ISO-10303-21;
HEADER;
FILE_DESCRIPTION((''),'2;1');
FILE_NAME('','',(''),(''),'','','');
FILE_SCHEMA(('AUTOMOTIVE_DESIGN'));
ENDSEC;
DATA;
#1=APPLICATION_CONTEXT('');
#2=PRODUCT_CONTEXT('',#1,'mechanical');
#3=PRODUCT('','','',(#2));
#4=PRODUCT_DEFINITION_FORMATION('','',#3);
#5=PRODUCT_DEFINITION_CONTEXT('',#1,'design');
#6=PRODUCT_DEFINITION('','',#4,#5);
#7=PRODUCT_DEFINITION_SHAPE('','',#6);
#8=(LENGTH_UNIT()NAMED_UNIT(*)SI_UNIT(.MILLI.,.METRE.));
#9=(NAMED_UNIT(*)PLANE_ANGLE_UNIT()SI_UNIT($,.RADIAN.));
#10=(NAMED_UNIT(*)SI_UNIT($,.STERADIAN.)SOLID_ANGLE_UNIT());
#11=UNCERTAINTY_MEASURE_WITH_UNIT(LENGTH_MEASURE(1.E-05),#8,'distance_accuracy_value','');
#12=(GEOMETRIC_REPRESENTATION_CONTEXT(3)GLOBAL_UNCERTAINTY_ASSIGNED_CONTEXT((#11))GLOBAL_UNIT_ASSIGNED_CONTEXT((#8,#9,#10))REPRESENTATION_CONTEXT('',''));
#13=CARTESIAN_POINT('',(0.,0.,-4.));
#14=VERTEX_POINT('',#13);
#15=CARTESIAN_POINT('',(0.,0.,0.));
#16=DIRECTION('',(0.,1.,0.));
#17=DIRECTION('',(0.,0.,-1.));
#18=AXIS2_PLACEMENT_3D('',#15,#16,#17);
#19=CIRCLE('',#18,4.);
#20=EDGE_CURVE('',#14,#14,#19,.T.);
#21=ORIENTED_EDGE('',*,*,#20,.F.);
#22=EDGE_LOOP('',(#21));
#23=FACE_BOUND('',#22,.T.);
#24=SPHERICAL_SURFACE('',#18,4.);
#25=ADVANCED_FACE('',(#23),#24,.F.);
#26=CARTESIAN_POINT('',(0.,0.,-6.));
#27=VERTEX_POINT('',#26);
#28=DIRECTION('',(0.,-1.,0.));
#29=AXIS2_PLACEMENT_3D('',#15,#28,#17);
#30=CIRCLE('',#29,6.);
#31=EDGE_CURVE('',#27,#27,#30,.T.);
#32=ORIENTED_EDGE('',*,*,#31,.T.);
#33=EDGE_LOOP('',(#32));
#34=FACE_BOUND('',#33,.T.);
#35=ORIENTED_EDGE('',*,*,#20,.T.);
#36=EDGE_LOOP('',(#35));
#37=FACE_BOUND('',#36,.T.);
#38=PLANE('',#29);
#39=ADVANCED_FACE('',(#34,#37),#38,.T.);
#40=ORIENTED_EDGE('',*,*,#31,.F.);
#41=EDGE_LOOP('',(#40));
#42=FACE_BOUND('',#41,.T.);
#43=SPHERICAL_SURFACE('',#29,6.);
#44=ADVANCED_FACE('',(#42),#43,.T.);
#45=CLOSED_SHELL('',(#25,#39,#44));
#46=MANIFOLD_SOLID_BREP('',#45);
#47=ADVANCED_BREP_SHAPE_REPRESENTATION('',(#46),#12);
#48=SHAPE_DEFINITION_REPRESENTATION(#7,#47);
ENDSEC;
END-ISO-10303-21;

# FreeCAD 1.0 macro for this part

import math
import FreeCAD as App
import Part
import Sketcher
from FreeCAD import Vector
Q = App.Units.Quantity

doc = App.newDocument("Part")
body = doc.addObject("PartDesign::Body", "Body")

# Sketch on XZ plane
sketch1 = doc.addObject("Sketcher::SketchObject", "Sketch")
body.addObject(sketch1)
sketch1.AttachmentSupport = (doc.XZ_Plane, [""])
sketch1.MapMode = "FlatFace"
sketch1.addGeometry(Part.LineSegment(Vector(-6, 0, 0), Vector(-4, 0, 0)), False)
sketch1.addGeometry(Part.ArcOfCircle(Part.Circle(Vector(0, 0, 0), Vector(0, 0, 1), 4), math.radians(180), math.radians(360)), False)
sketch1.addGeometry(Part.LineSegment(Vector(4, 0, 0), Vector(6, 0, 0)), False)
sketch1.addGeometry(Part.ArcOfCircle(Part.Circle(Vector(0, 0, 0), Vector(0, 0, 1), 6), math.radians(180), math.radians(360)), False)
sketch1.addConstraint(Sketcher.Constraint("Coincident", 0, 2, 1, 1))
sketch1.addConstraint(Sketcher.Constraint("Coincident", 1, 2, 2, 1))
sketch1.addConstraint(Sketcher.Constraint("Coincident", 2, 2, 3, 2))
sketch1.addConstraint(Sketcher.Constraint("Coincident", 3, 1, 0, 1))
sketch1.addConstraint(Sketcher.Constraint("Horizontal", 0))
sketch1.addConstraint(Sketcher.Constraint("Horizontal", 2))
sketch1.addConstraint(Sketcher.Constraint("Coincident", 1, 3, -1, 1))
sketch1.addConstraint(Sketcher.Constraint("Coincident", 3, 3, -1, 1))
sketch1.addConstraint(Sketcher.Constraint("PointOnObject", 0, 2, -1))
sketch1.addConstraint(Sketcher.Constraint("PointOnObject", 1, 2, -1))
sketch1.addConstraint(Sketcher.Constraint("Radius", 1, Q("4 mm")))
sketch1.addConstraint(Sketcher.Constraint("Radius", 3, Q("6 mm")))
revolution = doc.addObject("PartDesign::Revolution", "Revolution")
body.addObject(revolution)
revolution.Profile = sketch1
revolution.ReferenceAxis = (sketch1, ["H_Axis"])
revolution.Angle = 180

doc.recompute()
